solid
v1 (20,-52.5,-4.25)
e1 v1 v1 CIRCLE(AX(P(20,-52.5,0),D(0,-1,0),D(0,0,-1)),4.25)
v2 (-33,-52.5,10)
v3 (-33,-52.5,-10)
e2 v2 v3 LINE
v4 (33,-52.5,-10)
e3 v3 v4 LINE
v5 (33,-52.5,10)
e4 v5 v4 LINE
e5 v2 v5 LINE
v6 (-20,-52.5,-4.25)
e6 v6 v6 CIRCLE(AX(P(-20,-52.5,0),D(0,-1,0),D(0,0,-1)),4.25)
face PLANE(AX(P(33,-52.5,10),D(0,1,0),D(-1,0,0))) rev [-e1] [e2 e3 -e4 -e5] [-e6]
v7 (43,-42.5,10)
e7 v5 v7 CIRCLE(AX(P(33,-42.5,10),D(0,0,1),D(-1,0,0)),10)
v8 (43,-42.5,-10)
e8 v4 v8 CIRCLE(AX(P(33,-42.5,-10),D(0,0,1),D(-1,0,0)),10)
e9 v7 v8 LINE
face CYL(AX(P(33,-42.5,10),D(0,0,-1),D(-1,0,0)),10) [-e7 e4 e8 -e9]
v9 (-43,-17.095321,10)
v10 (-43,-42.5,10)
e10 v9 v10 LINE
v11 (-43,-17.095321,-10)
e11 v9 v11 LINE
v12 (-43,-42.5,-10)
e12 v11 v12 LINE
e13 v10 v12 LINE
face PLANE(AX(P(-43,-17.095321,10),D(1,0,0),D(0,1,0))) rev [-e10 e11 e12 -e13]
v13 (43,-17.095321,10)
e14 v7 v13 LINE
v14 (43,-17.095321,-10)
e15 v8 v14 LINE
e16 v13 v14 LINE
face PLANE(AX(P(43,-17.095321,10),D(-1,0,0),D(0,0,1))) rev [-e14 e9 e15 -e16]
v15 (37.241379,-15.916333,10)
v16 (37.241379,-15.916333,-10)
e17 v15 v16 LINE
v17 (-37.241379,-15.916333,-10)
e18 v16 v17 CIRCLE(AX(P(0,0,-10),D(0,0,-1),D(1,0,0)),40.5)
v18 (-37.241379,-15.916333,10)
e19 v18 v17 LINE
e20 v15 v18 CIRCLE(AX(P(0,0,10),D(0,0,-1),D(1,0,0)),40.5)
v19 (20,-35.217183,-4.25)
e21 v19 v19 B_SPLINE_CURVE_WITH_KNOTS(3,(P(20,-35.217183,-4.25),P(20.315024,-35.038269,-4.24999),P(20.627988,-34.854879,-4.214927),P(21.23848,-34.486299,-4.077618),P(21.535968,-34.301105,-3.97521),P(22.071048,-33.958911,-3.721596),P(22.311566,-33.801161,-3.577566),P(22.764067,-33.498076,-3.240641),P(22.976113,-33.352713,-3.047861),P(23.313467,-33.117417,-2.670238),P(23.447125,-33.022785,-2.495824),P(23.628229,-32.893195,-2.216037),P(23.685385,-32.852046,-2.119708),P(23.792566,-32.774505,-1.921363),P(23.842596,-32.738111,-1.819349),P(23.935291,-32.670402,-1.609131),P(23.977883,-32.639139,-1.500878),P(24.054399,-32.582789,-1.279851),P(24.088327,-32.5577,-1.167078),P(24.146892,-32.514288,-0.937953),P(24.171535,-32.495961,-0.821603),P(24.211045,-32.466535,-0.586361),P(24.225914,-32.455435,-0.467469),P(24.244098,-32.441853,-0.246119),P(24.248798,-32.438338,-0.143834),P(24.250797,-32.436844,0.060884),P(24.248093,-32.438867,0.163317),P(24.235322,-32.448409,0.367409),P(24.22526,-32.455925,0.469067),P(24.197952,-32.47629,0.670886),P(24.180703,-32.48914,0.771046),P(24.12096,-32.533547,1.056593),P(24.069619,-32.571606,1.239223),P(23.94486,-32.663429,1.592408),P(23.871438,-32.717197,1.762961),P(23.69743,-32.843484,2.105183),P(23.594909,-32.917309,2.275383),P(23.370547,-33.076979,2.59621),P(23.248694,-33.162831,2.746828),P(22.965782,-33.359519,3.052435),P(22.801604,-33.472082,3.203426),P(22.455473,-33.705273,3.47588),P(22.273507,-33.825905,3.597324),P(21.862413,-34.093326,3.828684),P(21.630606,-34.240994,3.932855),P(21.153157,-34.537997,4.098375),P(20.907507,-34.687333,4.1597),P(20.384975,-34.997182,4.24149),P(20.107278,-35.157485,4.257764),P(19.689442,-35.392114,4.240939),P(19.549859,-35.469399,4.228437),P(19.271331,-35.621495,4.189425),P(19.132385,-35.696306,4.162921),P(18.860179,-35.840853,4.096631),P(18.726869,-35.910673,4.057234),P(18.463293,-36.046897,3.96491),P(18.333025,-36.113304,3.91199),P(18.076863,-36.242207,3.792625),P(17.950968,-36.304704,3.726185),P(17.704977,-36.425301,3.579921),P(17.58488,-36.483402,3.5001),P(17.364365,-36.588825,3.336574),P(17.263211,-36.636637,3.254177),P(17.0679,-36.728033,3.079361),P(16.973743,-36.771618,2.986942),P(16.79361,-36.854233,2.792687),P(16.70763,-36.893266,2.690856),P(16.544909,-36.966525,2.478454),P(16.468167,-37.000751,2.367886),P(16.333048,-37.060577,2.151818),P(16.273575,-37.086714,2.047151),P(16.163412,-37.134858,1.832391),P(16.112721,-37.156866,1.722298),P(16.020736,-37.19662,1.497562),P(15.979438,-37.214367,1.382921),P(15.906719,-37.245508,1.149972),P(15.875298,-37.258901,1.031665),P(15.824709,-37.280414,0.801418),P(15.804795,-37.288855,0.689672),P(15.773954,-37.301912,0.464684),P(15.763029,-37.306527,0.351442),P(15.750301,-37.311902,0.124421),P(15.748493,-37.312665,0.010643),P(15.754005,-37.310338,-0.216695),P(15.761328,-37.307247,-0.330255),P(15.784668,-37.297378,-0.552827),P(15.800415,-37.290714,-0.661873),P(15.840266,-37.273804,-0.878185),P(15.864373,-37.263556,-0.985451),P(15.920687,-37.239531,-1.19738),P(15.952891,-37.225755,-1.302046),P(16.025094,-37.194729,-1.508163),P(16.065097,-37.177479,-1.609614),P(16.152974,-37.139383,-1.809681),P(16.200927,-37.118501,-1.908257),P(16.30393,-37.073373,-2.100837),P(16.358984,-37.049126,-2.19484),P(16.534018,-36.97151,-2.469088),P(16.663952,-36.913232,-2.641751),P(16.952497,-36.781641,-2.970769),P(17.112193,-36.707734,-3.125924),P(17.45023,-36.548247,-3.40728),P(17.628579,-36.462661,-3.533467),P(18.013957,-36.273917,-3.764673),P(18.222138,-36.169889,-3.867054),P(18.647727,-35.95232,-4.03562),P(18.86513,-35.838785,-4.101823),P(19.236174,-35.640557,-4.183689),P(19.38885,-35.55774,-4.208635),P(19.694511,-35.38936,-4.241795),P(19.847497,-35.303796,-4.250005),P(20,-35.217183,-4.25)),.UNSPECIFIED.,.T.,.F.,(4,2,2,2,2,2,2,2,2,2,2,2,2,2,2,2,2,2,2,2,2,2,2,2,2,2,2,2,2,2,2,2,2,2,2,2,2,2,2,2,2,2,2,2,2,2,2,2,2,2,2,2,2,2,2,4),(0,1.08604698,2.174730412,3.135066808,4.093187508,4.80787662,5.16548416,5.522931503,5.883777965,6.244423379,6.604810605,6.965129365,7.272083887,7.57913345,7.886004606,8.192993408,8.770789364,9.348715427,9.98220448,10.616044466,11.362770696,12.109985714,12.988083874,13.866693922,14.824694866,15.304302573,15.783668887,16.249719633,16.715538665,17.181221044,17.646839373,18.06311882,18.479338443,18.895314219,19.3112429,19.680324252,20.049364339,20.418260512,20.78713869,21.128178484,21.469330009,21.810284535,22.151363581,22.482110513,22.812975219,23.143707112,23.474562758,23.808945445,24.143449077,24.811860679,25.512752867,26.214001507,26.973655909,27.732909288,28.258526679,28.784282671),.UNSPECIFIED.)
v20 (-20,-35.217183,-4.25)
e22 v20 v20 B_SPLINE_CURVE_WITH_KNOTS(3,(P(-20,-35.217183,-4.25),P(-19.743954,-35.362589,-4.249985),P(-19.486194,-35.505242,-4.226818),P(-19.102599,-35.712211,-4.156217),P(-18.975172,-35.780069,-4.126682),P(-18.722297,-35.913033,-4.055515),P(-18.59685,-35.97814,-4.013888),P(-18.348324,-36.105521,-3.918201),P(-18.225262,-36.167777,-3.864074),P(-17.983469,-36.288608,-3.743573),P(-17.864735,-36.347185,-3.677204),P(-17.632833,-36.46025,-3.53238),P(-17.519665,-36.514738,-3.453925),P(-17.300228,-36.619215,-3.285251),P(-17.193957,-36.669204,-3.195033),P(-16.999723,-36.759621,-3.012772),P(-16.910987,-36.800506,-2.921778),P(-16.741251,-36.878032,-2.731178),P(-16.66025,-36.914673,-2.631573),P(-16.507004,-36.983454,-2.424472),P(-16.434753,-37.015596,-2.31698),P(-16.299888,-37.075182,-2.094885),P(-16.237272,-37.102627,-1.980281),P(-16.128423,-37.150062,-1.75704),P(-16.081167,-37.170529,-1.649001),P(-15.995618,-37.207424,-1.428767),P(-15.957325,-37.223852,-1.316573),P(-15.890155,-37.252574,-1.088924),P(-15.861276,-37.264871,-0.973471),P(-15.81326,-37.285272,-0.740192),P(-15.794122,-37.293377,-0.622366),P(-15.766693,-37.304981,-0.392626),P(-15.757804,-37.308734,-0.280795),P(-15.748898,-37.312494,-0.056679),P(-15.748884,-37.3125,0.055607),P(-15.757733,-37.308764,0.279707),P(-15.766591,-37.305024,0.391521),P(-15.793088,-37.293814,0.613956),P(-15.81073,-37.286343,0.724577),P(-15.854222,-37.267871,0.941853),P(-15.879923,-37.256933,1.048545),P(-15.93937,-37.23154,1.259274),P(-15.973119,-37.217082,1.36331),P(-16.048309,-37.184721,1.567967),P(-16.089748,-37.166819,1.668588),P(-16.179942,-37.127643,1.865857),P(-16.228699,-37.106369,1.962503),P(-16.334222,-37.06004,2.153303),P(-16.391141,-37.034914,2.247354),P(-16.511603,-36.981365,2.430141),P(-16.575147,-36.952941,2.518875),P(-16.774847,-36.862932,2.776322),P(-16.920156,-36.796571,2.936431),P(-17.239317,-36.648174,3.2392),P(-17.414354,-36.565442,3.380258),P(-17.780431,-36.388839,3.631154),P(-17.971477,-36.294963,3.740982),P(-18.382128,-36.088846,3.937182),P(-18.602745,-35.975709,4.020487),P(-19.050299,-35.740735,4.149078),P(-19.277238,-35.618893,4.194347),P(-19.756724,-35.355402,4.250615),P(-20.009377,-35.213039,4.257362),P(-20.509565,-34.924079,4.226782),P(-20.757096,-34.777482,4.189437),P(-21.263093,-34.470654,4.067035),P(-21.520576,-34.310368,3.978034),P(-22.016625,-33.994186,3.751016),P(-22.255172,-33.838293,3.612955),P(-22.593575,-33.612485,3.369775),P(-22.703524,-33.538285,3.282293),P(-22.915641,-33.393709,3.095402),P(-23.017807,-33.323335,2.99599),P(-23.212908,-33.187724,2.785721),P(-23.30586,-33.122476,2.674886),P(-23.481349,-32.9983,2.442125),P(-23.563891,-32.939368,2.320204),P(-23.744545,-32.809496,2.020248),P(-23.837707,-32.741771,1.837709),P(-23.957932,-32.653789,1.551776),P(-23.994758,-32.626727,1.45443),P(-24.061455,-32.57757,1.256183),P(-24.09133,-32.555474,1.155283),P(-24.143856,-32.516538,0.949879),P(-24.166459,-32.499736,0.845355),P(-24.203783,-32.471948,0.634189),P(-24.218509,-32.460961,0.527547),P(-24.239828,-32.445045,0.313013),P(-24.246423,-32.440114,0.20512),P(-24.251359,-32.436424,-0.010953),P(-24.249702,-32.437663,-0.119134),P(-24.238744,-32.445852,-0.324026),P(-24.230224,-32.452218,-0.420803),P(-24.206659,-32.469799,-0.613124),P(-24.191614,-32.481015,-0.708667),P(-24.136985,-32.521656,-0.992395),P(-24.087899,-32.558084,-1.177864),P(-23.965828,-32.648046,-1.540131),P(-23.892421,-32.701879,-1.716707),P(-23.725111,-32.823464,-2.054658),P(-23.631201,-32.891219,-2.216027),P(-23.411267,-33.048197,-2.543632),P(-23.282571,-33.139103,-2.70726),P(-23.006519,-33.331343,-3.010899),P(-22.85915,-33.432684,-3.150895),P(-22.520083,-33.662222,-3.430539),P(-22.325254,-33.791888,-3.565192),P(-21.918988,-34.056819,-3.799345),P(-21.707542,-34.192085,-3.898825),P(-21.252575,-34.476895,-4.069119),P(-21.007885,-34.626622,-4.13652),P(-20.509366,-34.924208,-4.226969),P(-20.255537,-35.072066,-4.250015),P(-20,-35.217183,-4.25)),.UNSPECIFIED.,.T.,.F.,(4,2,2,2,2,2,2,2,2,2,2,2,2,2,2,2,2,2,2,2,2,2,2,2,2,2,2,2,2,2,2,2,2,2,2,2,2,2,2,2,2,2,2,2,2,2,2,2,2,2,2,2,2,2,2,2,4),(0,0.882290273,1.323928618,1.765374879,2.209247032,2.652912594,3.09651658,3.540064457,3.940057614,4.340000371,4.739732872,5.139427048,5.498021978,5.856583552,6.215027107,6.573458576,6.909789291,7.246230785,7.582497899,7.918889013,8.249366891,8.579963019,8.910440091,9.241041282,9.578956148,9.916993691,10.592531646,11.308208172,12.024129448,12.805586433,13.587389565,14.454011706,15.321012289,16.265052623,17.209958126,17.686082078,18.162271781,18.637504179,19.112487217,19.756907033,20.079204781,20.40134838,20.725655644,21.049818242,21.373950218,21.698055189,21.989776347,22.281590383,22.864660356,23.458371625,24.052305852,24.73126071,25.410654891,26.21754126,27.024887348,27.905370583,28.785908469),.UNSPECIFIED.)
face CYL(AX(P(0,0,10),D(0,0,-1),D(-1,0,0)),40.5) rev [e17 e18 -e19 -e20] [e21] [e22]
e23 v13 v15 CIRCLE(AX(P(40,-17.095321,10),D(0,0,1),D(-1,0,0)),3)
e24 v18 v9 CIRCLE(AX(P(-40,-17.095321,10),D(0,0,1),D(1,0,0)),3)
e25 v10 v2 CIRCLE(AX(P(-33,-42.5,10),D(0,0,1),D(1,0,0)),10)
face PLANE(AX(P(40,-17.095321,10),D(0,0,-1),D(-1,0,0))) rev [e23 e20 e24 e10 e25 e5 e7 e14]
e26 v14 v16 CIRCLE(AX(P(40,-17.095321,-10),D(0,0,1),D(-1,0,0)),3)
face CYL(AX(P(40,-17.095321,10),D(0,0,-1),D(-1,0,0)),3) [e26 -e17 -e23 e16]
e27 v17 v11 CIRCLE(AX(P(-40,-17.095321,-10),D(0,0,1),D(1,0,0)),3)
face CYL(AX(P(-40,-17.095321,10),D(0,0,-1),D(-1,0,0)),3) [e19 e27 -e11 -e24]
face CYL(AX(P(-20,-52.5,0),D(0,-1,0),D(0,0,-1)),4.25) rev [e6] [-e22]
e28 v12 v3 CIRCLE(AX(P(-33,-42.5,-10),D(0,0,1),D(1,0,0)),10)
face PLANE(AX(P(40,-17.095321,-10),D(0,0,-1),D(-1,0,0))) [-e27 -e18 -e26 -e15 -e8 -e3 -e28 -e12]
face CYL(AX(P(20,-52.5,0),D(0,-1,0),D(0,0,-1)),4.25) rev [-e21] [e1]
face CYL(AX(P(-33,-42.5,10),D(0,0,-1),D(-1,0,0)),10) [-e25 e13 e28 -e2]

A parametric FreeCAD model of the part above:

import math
import FreeCAD as App
import Part
import Sketcher

doc = App.newDocument("Part")
body = doc.addObject("PartDesign::Body", "Body")

# Sketch on XY plane
sketch1 = doc.addObject("Sketcher::SketchObject", "Sketch")
body.addObject(sketch1)
sketch1.AttachmentSupport = (doc.XY_Plane, [""])
sketch1.MapMode = "FlatFace"
sketch1.addGeometry(Part.LineSegment(App.Vector(43, -42.5, 0), App.Vector(43, -17.1, 0)), False)
sketch1.addGeometry(Part.ArcOfCircle(Part.Circle(App.Vector(40, -17.1, 0), App.Vector(0, 0, 1), 3), math.radians(0), math.radians(157)), False)
sketch1.addGeometry(Part.ArcOfCircle(Part.Circle(App.Vector(0, 0, 0), App.Vector(0, 0, 1), 40.5), math.radians(-157), math.radians(-23)), False)
sketch1.addGeometry(Part.ArcOfCircle(Part.Circle(App.Vector(-40, -17.1, 0), App.Vector(0, 0, 1), 3), math.radians(23), math.radians(180)), False)
sketch1.addGeometry(Part.LineSegment(App.Vector(-43, -17.1, 0), App.Vector(-43, -42.5, 0)), False)
sketch1.addGeometry(Part.ArcOfCircle(Part.Circle(App.Vector(-33, -42.5, 0), App.Vector(0, 0, 1), 10), math.radians(180), math.radians(270)), False)
sketch1.addGeometry(Part.LineSegment(App.Vector(-33, -52.5, 0), App.Vector(33, -52.5, 0)), False)
sketch1.addGeometry(Part.ArcOfCircle(Part.Circle(App.Vector(33, -42.5, 0), App.Vector(0, 0, 1), 10), math.radians(-90), math.radians(0)), False)
sketch1.addConstraint(Sketcher.Constraint("Tangent", 0, 2, 1, 1))
sketch1.addConstraint(Sketcher.Constraint("Tangent", 1, 2, 2, 2))
sketch1.addConstraint(Sketcher.Constraint("Tangent", 2, 1, 3, 1))
sketch1.addConstraint(Sketcher.Constraint("Tangent", 3, 2, 4, 1))
sketch1.addConstraint(Sketcher.Constraint("Tangent", 4, 2, 5, 1))
sketch1.addConstraint(Sketcher.Constraint("Tangent", 5, 2, 6, 1))
sketch1.addConstraint(Sketcher.Constraint("Tangent", 6, 2, 7, 1))
sketch1.addConstraint(Sketcher.Constraint("Tangent", 7, 2, 0, 1))
sketch1.addConstraint(Sketcher.Constraint("Vertical", 0))
sketch1.addConstraint(Sketcher.Constraint("Vertical", 4))
sketch1.addConstraint(Sketcher.Constraint("Horizontal", 6))
sketch1.addConstraint(Sketcher.Constraint("Coincident", 2, 3, -1, 1))
sketch1.addConstraint(Sketcher.Constraint("Equal", 1, 3))
sketch1.addConstraint(Sketcher.Constraint("Equal", 5, 7))
sketch1.addConstraint(Sketcher.Constraint("Horizontal", 1, 3, 3, 3))
sketch1.addConstraint(Sketcher.Constraint("Radius", 1, 3.0))
sketch1.addConstraint(Sketcher.Constraint("Radius", 5, 10.0))
sketch1.addConstraint(Sketcher.Constraint("Radius", 2, 40.5))
sketch1.addConstraint(Sketcher.Constraint("DistanceX", 6, 1, 6, 2, 66.0))
sketch1.addConstraint(Sketcher.Constraint("DistanceY", 5, 3, -1, 1, 42.5))
pad1 = doc.addObject("PartDesign::Pad", "Pad")
body.addObject(pad1)
pad1.Profile = sketch1
pad1.Length = 20
pad1.Midplane = True

# Sketch on XZ plane
sketch2 = doc.addObject("Sketcher::SketchObject", "Sketch001")
body.addObject(sketch2)
sketch2.AttachmentSupport = (doc.XZ_Plane, [""])
sketch2.MapMode = "FlatFace"
sketch2.AttachmentOffset = App.Placement(App.Vector(0, 0, 52.5), App.Rotation())
sketch2.addGeometry(Part.Circle(App.Vector(-20, 0, 0), App.Vector(0, 0, 1), 4.2), False)
sketch2.addGeometry(Part.Circle(App.Vector(20, 0, 0), App.Vector(0, 0, 1), 4.2), False)
sketch2.addConstraint(Sketcher.Constraint("Equal", 0, 1))
sketch2.addConstraint(Sketcher.Constraint("Symmetric", 0, 3, 1, 3, -1, 1))
sketch2.addConstraint(Sketcher.Constraint("PointOnObject", 0, 3, -1))
sketch2.addConstraint(Sketcher.Constraint("Diameter", 0, 8.5))
sketch2.addConstraint(Sketcher.Constraint("DistanceX", 0, 3, -1, 1, 20.0))
doc.recompute()
hole = doc.addObject("PartDesign::Hole", "Hole")
body.addObject(hole)
hole.Profile = sketch2
hole.ThreadType = "None"
hole.Diameter = 8.5
hole.DepthType = "Dimension"
hole.Depth = 30
hole.DrillPoint = "Angled"
hole.DrillPointAngle = 118

doc.recompute()
